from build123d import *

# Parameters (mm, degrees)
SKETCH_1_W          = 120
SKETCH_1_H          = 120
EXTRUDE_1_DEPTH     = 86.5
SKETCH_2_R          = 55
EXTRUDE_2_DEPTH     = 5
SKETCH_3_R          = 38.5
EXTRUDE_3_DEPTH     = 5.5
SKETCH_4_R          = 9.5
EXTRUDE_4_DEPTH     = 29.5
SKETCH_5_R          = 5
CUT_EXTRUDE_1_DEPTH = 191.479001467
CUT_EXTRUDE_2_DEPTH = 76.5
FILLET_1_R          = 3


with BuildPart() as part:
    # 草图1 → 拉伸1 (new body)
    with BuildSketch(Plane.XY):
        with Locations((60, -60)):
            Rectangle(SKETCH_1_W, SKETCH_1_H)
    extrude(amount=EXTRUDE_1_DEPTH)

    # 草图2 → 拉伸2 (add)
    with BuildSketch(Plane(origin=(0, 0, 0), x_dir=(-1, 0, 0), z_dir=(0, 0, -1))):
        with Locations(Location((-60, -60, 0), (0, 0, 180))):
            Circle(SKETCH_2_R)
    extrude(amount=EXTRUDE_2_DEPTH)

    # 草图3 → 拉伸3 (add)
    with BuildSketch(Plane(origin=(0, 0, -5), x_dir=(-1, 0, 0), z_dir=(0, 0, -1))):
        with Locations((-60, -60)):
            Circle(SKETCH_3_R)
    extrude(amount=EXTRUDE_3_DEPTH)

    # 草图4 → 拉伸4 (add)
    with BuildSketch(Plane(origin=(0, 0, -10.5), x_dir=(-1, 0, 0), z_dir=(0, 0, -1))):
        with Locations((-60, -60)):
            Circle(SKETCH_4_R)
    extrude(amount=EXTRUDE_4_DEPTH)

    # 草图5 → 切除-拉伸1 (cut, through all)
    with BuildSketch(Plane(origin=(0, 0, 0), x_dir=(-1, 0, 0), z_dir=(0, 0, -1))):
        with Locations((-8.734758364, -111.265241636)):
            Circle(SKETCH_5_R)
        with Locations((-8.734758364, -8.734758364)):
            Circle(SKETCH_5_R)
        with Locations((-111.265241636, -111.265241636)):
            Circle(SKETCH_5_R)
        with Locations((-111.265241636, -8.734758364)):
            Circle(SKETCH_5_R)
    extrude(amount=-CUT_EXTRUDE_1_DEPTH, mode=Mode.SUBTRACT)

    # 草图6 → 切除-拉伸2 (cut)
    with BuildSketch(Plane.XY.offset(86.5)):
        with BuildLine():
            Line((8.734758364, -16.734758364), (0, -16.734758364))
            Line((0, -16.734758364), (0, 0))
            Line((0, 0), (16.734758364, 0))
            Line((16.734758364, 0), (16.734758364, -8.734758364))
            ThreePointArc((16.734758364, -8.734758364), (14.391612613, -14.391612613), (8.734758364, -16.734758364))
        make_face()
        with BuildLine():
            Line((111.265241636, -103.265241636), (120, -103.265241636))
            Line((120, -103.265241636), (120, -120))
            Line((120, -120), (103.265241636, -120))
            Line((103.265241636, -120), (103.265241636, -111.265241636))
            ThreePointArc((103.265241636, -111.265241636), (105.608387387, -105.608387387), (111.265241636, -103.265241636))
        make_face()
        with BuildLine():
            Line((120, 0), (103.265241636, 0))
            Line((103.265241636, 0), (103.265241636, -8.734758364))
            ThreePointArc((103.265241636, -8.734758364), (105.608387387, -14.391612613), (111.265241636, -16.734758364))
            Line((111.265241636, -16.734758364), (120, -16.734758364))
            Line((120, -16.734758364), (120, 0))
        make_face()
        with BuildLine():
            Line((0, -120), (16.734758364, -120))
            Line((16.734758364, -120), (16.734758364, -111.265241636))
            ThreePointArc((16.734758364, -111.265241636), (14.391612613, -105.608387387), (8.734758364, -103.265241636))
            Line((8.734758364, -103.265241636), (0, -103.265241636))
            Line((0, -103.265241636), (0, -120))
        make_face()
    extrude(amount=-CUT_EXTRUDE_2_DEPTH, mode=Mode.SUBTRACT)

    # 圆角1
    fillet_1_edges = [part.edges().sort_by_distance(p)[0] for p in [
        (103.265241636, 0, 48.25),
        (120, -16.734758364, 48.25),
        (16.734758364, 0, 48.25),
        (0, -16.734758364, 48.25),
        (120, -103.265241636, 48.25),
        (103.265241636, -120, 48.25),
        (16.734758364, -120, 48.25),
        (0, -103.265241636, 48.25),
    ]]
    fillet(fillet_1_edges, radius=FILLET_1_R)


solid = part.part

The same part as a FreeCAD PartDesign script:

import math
import FreeCAD as App
import Part
import Sketcher
from FreeCAD import Vector
Q = App.Units.Quantity


def edges_at(feature, points):
    """Names of the edges that pass closest to the given points."""
    edges = feature.Shape.Edges
    near = lambda p: min(range(len(edges)), key=lambda i: edges[i].distToShape(Part.Vertex(*p))[0])
    return sorted({f"Edge{near(p) + 1}" for p in points})


def add_polygon(sketch, points):
    """Adds a closed chain of lines whose ends are joined by coincident constraints."""
    first, n = sketch.GeometryCount, len(points)
    for a, b in zip(points, points[1:] + points[:1]):
        sketch.addGeometry(Part.LineSegment(App.Vector(*a, 0), App.Vector(*b, 0)), False)
    for i in range(n):
        sketch.addConstraint(Sketcher.Constraint("Coincident", first + i, 2, first + (i + 1) % n, 1))

doc = App.newDocument("Part")
body = doc.addObject("PartDesign::Body", "Body")

# Sketch on XY plane
sketch1 = doc.addObject("Sketcher::SketchObject", "Sketch")
body.addObject(sketch1)
sketch1.AttachmentSupport = (doc.XY_Plane, [""])
sketch1.MapMode = "FlatFace"
add_polygon(sketch1, [(0, 0), (0, -120), (120, -120), (120, 0)])  # lines 0-3
sketch1.addConstraint([
    Sketcher.Constraint("Vertical", 0),
    Sketcher.Constraint("Horizontal", 1),
    Sketcher.Constraint("Vertical", 2),
    Sketcher.Constraint("Horizontal", 3),
    Sketcher.Constraint("Coincident", 3, 2, -1, 1),
    Sketcher.Constraint("Equal", 3, 0),
    Sketcher.Constraint("DistanceX", 1, 1, 1, 2, Q("120 mm")),
])
pad1 = doc.addObject("PartDesign::Pad", "Pad")
body.addObject(pad1)
pad1.Profile = sketch1
pad1.Length = 86.5

# Sketch on XY plane
sketch2 = doc.addObject("Sketcher::SketchObject", "Sketch001")
body.addObject(sketch2)
sketch2.AttachmentSupport = (doc.XY_Plane, [""])
sketch2.MapMode = "FlatFace"
sketch2.addGeometry(Part.Circle(Vector(60, -60, 0), Vector(0, 0, 1), 55), False)
sketch2.addConstraint([
    Sketcher.Constraint("Diameter", 0, Q("110 mm")),
    Sketcher.Constraint("DistanceX", -1, 1, 0, 3, Q("60 mm")),
    Sketcher.Constraint("DistanceY", 0, 3, -1, 1, Q("60 mm")),
])
pad2 = doc.addObject("PartDesign::Pad", "Pad001")
body.addObject(pad2)
pad2.Profile = sketch2
pad2.Length = 5
pad2.Reversed = True

# Sketch on XY plane
sketch3 = doc.addObject("Sketcher::SketchObject", "Sketch002")
body.addObject(sketch3)
sketch3.AttachmentSupport = (doc.XY_Plane, [""])
sketch3.MapMode = "FlatFace"
sketch3.AttachmentOffset = App.Placement(Vector(0, 0, -5), App.Rotation())
sketch3.addGeometry(Part.Circle(Vector(60, -60, 0), Vector(0, 0, 1), 38), False)
sketch3.addConstraint([
    Sketcher.Constraint("Diameter", 0, Q("77 mm")),
    Sketcher.Constraint("DistanceX", -1, 1, 0, 3, Q("60 mm")),
    Sketcher.Constraint("DistanceY", 0, 3, -1, 1, Q("60 mm")),
])
pad3 = doc.addObject("PartDesign::Pad", "Pad002")
body.addObject(pad3)
pad3.Profile = sketch3
pad3.Length = 5.5
pad3.Reversed = True

# Sketch on XY plane
sketch4 = doc.addObject("Sketcher::SketchObject", "Sketch003")
body.addObject(sketch4)
sketch4.AttachmentSupport = (doc.XY_Plane, [""])
sketch4.MapMode = "FlatFace"
sketch4.AttachmentOffset = App.Placement(Vector(0, 0, -10.5), App.Rotation())
sketch4.addGeometry(Part.Circle(Vector(60, -60, 0), Vector(0, 0, 1), 10), False)
sketch4.addConstraint([
    Sketcher.Constraint("Diameter", 0, Q("19 mm")),
    Sketcher.Constraint("DistanceX", -1, 1, 0, 3, Q("60 mm")),
    Sketcher.Constraint("DistanceY", 0, 3, -1, 1, Q("60 mm")),
])
pad4 = doc.addObject("PartDesign::Pad", "Pad003")
body.addObject(pad4)
pad4.Profile = sketch4
pad4.Length = 29.5
pad4.Reversed = True

# Sketch on XY plane
sketch5 = doc.addObject("Sketcher::SketchObject", "Sketch004")
body.addObject(sketch5)
sketch5.AttachmentSupport = (doc.XY_Plane, [""])
sketch5.MapMode = "FlatFace"
sketch5.addGeometry([
    Part.Circle(Vector(9, -111, 0), Vector(0, 0, 1), 5),
    Part.Circle(Vector(9, -9, 0), Vector(0, 0, 1), 5),
    Part.Circle(Vector(111, -111, 0), Vector(0, 0, 1), 5),
    Part.Circle(Vector(111, -9, 0), Vector(0, 0, 1), 5),
], False)
sketch5.addConstraint([
    Sketcher.Constraint("Equal", 0, 1),
    Sketcher.Constraint("Equal", 1, 2),
    Sketcher.Constraint("Equal", 2, 3),
    Sketcher.Constraint("Horizontal", 0, 3, 2, 3),
    Sketcher.Constraint("Horizontal", 1, 3, 3, 3),
    Sketcher.Constraint("Vertical", 0, 3, 1, 3),
    Sketcher.Constraint("Vertical", 2, 3, 3, 3),
    Sketcher.Constraint("Diameter", 0, Q("10 mm")),
    Sketcher.Constraint("DistanceX", -1, 1, 0, 3, Q("8.734758 mm")),
    Sketcher.Constraint("DistanceY", 0, 3, -1, 1, Q("111.265242 mm")),
    Sketcher.Constraint("DistanceY", 1, 3, -1, 1, Q("8.734758 mm")),
    Sketcher.Constraint("DistanceX", -1, 1, 2, 3, Q("111.265242 mm")),
])
pocket1 = doc.addObject("PartDesign::Pocket", "Pocket")
body.addObject(pocket1)
pocket1.Profile = sketch5
pocket1.Type = "ThroughAll"
pocket1.Reversed = True

# Sketch on XY plane
sketch6 = doc.addObject("Sketcher::SketchObject", "Sketch005")
body.addObject(sketch6)
sketch6.AttachmentSupport = (doc.XY_Plane, [""])
sketch6.MapMode = "FlatFace"
sketch6.AttachmentOffset = App.Placement(Vector(0, 0, 86.5), App.Rotation())
sketch6.addGeometry([
    Part.LineSegment(Vector(0, -17, 0), Vector(9, -17, 0)),  # 0
    Part.ArcOfCircle(Part.Circle(Vector(9, -9, 0), Vector(0, 0, 1), 8), math.radians(-90), math.radians(0)),  # 1
    Part.LineSegment(Vector(17, -9, 0), Vector(17, 0, 0)),  # 2
    Part.LineSegment(Vector(17, 0, 0), Vector(0, 0, 0)),  # 3
    Part.LineSegment(Vector(0, 0, 0), Vector(0, -17, 0)),  # 4
    Part.LineSegment(Vector(120, -103, 0), Vector(111, -103, 0)),  # 5
    Part.ArcOfCircle(Part.Circle(Vector(111, -111, 0), Vector(0, 0, 1), 8), math.radians(90), math.radians(180)),  # 6
    Part.LineSegment(Vector(103, -111, 0), Vector(103, -120, 0)),  # 7
    Part.LineSegment(Vector(103, -120, 0), Vector(120, -120, 0)),  # 8
    Part.LineSegment(Vector(120, -120, 0), Vector(120, -103, 0)),  # 9
    Part.LineSegment(Vector(120, 0, 0), Vector(103, 0, 0)),  # 10
    Part.LineSegment(Vector(103, 0, 0), Vector(103, -9, 0)),  # 11
    Part.ArcOfCircle(Part.Circle(Vector(111, -9, 0), Vector(0, 0, 1), 8), math.radians(-180), math.radians(-90)),  # 12
    Part.LineSegment(Vector(111, -17, 0), Vector(120, -17, 0)),  # 13
    Part.LineSegment(Vector(120, -17, 0), Vector(120, 0, 0)),  # 14
    Part.LineSegment(Vector(0, -120, 0), Vector(17, -120, 0)),  # 15
    Part.LineSegment(Vector(17, -120, 0), Vector(17, -111, 0)),  # 16
    Part.ArcOfCircle(Part.Circle(Vector(9, -111, 0), Vector(0, 0, 1), 8), math.radians(0), math.radians(90)),  # 17
    Part.LineSegment(Vector(9, -103, 0), Vector(0, -103, 0)),  # 18
    Part.LineSegment(Vector(0, -103, 0), Vector(0, -120, 0)),  # 19
], False)
sketch6.addConstraint([
    Sketcher.Constraint("Tangent", 0, 2, 1, 1),
    Sketcher.Constraint("Tangent", 1, 2, 2, 1),
    Sketcher.Constraint("Coincident", 2, 2, 3, 1),
    Sketcher.Constraint("Coincident", 3, 2, 4, 1),
    Sketcher.Constraint("Coincident", 4, 2, 0, 1),
    Sketcher.Constraint("Tangent", 5, 2, 6, 1),
    Sketcher.Constraint("Tangent", 6, 2, 7, 1),
    Sketcher.Constraint("Coincident", 7, 2, 8, 1),
    Sketcher.Constraint("Coincident", 8, 2, 9, 1),
    Sketcher.Constraint("Coincident", 9, 2, 5, 1),
    Sketcher.Constraint("Coincident", 10, 2, 11, 1),
    Sketcher.Constraint("Tangent", 11, 2, 12, 1),
    Sketcher.Constraint("Tangent", 12, 2, 13, 1),
    Sketcher.Constraint("Coincident", 13, 2, 14, 1),
    Sketcher.Constraint("Coincident", 14, 2, 10, 1),
    Sketcher.Constraint("Coincident", 15, 2, 16, 1),
    Sketcher.Constraint("Tangent", 16, 2, 17, 1),
    Sketcher.Constraint("Tangent", 17, 2, 18, 1),
    Sketcher.Constraint("Coincident", 18, 2, 19, 1),
    Sketcher.Constraint("Coincident", 19, 2, 15, 1),
    Sketcher.Constraint("Horizontal", 0),
    Sketcher.Constraint("Vertical", 2),
    Sketcher.Constraint("Horizontal", 3),
    Sketcher.Constraint("Vertical", 4),
    Sketcher.Constraint("Horizontal", 5),
    Sketcher.Constraint("Vertical", 7),
    Sketcher.Constraint("Horizontal", 8),
    Sketcher.Constraint("Vertical", 9),
    Sketcher.Constraint("Horizontal", 10),
    Sketcher.Constraint("Vertical", 11),
    Sketcher.Constraint("Horizontal", 13),
    Sketcher.Constraint("Vertical", 14),
    Sketcher.Constraint("Horizontal", 15),
    Sketcher.Constraint("Vertical", 16),
    Sketcher.Constraint("Horizontal", 18),
    Sketcher.Constraint("Vertical", 19),
    Sketcher.Constraint("Coincident", 3, 2, -1, 1),
    Sketcher.Constraint("Equal", 1, 6),
    Sketcher.Constraint("Equal", 6, 12),
    Sketcher.Constraint("Equal", 12, 17),
    Sketcher.Constraint("PointOnObject", 10, 2, -1),
    Sketcher.Constraint("PointOnObject", 18, 2, -2),
    Sketcher.Constraint("Horizontal", 1, 3, 12, 3),
    Sketcher.Constraint("Horizontal", 6, 3, 17, 3),
    Sketcher.Constraint("Horizontal", 8, 2, 15, 2),
    Sketcher.Constraint("Vertical", 6, 3, 12, 3),
    Sketcher.Constraint("Vertical", 1, 3, 17, 3),
    Sketcher.Constraint("Vertical", 9, 2, 13, 2),
    Sketcher.Constraint("Equal", 0, 5),
    Sketcher.Constraint("Equal", 18, 2),
    Sketcher.Constraint("Equal", 2, 7),
    Sketcher.Constraint("Radius", 1, Q("8 mm")),
    Sketcher.Constraint("DistanceY", 7, 2, -1, 1, Q("120 mm")),
    Sketcher.Constraint("DistanceX", -1, 1, 8, 2, Q("120 mm")),
    Sketcher.Constraint("DistanceX", 0, 1, 0, 2, Q("8.734758 mm")),
])
pocket2 = doc.addObject("PartDesign::Pocket", "Pocket001")
body.addObject(pocket2)
pocket2.Profile = sketch6
pocket2.Length = 76.5
doc.recompute()

fillet = doc.addObject("PartDesign::Fillet", "Fillet")
body.addObject(fillet)
fillet.Base = (pocket2, edges_at(pocket2, [
    (103.265, 0, 48.25),
    (120, -16.735, 48.25),
    (16.735, 0, 48.25),
    (0, -16.735, 48.25),
    (120, -103.265, 48.25),
    (103.265, -120, 48.25),
    (16.735, -120, 48.25),
    (0, -103.265, 48.25),
]))
fillet.Radius = 3

doc.recompute()
